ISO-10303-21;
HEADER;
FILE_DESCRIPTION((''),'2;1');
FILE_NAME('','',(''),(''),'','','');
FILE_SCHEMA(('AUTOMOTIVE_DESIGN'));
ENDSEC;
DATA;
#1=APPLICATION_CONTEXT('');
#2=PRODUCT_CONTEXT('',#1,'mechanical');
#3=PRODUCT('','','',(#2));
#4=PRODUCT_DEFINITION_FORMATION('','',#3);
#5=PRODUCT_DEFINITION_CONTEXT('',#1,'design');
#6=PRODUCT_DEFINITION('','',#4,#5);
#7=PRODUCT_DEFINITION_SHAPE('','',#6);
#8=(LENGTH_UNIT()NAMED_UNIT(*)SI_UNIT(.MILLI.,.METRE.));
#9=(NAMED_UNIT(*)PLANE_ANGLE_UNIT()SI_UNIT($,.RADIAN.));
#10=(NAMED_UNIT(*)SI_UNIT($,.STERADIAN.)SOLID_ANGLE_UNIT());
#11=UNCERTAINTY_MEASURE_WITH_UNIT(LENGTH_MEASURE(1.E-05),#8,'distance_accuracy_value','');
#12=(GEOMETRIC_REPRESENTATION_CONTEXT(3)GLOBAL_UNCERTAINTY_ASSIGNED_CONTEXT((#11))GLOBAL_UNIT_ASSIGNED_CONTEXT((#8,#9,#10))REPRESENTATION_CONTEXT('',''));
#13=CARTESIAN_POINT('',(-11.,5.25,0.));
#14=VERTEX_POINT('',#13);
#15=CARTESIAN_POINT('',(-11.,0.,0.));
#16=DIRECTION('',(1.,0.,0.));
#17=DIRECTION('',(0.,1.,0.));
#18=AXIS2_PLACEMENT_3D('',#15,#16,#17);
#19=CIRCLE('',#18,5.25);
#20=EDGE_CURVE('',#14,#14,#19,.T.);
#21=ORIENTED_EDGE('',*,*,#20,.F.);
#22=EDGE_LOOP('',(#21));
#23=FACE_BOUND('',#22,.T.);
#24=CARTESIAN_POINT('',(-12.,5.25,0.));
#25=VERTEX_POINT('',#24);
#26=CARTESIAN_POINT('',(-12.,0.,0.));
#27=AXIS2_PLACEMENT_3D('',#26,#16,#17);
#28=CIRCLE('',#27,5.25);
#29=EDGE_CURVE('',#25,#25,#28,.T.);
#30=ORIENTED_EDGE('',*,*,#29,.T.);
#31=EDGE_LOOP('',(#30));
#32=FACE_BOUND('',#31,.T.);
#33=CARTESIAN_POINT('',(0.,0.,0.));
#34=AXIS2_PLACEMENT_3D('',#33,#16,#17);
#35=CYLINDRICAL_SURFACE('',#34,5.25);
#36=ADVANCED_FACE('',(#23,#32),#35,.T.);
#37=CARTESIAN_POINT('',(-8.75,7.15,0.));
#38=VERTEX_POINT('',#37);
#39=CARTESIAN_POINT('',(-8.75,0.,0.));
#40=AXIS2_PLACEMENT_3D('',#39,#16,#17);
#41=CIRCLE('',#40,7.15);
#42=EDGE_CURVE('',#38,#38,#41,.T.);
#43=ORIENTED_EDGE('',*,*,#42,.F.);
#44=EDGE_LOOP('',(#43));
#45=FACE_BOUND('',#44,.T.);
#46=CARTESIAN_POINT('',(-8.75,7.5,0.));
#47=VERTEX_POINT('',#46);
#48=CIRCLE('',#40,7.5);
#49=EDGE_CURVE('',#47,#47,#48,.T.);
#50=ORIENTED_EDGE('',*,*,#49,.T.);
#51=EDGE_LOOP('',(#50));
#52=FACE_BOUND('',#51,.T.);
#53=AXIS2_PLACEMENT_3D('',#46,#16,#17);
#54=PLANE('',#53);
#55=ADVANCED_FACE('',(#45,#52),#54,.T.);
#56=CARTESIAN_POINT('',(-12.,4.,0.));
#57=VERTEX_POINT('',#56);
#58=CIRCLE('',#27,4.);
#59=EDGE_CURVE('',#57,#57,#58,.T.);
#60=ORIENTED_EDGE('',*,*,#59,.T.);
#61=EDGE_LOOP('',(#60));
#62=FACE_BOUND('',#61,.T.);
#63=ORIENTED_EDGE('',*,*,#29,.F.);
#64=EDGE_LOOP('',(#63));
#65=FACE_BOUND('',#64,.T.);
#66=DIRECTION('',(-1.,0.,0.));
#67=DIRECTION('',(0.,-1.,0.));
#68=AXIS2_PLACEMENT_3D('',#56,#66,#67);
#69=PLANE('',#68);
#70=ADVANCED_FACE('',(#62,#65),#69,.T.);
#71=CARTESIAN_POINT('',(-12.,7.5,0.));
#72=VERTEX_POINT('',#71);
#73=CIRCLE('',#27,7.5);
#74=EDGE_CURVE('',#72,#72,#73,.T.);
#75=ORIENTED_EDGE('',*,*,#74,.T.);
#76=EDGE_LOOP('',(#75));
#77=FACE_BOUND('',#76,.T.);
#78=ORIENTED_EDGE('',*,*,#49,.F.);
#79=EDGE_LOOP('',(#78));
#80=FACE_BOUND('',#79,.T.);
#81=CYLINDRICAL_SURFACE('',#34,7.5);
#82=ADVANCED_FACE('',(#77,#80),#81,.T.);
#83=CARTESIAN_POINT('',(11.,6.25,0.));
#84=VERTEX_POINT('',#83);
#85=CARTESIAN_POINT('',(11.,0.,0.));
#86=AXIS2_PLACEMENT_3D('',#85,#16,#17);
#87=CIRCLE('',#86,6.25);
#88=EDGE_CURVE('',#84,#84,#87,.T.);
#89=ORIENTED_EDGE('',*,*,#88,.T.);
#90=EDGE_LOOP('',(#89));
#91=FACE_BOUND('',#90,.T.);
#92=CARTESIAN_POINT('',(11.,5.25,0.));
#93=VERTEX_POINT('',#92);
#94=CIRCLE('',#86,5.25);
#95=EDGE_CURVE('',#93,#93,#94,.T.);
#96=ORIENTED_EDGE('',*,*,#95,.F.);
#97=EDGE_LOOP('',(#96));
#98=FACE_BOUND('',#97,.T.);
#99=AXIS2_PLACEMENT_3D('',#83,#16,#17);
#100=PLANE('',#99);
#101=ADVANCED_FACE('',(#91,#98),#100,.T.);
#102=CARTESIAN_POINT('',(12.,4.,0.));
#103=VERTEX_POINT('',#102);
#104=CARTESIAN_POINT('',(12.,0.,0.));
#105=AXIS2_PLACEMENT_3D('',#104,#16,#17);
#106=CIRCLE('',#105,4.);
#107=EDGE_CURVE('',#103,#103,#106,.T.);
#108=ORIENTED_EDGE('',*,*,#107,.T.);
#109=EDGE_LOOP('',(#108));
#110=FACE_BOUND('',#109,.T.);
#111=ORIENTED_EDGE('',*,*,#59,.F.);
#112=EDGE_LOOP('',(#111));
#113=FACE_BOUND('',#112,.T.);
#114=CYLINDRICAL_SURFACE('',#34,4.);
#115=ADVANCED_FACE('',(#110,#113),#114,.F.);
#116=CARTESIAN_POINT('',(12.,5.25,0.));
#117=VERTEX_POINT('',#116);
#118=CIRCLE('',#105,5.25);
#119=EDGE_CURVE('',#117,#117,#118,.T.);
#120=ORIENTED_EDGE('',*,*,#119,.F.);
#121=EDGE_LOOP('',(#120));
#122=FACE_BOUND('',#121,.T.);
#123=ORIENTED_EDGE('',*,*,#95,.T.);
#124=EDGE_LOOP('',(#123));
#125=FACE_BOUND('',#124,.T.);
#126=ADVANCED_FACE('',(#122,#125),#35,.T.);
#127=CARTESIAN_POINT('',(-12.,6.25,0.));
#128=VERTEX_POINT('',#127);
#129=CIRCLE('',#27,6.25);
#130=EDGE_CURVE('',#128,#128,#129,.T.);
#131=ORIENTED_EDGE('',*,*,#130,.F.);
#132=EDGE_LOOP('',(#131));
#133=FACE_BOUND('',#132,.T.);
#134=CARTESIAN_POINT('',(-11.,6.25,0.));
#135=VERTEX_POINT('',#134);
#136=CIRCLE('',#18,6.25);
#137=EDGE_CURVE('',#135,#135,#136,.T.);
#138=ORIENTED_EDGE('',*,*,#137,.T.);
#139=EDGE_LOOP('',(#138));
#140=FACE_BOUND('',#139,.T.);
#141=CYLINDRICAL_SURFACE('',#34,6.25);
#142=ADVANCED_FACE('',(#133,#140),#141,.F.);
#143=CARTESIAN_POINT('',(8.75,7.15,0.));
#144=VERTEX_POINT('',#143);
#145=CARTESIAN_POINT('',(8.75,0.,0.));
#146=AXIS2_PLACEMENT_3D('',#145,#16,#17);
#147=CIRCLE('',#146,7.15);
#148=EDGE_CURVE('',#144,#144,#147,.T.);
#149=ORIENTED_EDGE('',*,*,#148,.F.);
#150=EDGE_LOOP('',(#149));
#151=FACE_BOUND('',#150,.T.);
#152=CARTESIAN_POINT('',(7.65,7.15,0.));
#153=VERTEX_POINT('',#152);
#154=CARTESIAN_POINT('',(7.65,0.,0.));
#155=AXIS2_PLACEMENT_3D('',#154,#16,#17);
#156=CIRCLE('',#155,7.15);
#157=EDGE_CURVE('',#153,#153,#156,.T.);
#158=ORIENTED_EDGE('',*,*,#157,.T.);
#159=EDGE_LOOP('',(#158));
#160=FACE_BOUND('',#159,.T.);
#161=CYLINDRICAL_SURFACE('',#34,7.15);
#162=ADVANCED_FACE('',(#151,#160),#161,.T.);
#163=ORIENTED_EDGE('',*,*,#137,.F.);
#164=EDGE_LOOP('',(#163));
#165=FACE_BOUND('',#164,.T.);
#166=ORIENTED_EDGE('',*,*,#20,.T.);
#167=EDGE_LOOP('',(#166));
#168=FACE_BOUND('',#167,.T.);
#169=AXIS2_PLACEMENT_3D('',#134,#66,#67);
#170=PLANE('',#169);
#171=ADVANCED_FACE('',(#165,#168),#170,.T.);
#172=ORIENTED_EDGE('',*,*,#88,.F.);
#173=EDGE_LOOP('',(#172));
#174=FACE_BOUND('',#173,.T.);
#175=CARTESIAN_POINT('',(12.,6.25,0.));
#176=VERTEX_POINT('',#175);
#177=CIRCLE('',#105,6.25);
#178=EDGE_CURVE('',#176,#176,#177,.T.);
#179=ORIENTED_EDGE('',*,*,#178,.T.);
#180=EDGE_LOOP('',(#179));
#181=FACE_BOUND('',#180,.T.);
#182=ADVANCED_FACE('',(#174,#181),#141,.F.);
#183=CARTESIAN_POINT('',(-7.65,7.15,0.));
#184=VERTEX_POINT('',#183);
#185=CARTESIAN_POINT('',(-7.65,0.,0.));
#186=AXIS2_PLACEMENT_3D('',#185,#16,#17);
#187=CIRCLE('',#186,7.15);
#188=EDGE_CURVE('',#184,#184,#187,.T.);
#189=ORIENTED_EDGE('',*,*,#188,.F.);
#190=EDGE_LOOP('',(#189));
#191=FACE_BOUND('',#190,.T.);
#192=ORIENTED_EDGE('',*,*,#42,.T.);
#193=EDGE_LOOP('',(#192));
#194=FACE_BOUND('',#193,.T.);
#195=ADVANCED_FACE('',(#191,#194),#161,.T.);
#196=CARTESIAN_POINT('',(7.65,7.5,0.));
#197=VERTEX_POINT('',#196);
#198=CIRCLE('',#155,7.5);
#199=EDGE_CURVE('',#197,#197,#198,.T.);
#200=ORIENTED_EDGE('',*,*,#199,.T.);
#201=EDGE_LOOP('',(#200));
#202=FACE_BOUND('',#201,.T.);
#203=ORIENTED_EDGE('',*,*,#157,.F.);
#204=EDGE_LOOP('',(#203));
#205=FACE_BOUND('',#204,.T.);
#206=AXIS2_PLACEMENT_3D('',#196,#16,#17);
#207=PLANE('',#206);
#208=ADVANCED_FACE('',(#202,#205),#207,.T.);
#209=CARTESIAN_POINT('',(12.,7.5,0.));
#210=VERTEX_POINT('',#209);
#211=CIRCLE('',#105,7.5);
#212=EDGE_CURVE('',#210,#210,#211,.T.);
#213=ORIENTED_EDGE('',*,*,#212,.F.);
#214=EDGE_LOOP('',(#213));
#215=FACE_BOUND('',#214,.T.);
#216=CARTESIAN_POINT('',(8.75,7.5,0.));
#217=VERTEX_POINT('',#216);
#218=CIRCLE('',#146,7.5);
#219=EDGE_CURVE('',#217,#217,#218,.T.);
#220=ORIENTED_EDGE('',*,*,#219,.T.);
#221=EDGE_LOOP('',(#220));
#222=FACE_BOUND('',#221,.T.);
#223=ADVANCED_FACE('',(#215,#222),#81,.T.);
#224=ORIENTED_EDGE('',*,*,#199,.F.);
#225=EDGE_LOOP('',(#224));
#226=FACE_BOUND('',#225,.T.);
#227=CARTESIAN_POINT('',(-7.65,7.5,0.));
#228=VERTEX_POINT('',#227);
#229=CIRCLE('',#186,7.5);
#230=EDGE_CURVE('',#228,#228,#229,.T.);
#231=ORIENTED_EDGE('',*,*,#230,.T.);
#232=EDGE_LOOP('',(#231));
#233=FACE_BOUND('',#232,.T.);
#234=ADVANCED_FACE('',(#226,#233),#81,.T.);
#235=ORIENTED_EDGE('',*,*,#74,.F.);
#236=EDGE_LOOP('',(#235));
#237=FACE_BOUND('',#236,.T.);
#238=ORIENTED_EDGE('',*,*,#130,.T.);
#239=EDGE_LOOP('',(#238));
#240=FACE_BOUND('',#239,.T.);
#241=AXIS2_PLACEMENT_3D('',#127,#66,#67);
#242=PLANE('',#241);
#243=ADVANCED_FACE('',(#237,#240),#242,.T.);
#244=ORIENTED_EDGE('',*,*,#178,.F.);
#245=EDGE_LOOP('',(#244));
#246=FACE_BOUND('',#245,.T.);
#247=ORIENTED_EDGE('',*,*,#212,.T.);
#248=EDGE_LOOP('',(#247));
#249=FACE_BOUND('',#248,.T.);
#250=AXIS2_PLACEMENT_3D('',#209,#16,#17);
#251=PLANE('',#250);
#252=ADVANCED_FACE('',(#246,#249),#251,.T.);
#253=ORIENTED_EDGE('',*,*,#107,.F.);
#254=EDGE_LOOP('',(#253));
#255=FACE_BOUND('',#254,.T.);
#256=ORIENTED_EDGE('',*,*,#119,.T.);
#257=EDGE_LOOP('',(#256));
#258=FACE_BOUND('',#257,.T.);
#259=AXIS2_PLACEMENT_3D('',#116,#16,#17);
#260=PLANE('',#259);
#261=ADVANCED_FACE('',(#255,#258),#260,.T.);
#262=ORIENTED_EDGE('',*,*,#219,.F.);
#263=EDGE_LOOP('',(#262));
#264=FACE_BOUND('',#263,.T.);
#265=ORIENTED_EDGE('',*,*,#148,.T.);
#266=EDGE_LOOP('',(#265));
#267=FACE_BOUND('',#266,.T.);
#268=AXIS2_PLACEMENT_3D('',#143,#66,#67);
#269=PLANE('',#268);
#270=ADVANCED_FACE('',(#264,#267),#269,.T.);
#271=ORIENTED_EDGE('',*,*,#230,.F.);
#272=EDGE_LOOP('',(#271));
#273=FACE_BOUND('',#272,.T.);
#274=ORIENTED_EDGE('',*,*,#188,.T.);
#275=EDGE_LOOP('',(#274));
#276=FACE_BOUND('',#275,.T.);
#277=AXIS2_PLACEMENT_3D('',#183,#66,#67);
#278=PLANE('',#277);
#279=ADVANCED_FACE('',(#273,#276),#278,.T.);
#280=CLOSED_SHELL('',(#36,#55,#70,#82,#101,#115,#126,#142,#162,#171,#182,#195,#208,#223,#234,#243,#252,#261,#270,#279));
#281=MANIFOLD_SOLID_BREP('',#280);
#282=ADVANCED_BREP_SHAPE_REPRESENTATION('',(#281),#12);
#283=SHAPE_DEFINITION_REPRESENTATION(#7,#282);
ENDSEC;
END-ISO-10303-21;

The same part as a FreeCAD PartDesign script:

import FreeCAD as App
import Part
import Sketcher
Q = App.Units.Quantity

doc = App.newDocument("Part")
body = doc.addObject("PartDesign::Body", "Body")

# Sketch on XY plane
sketch1 = body.newObject("Sketcher::SketchObject", "Sketch")
sketch1.AttachmentSupport = (doc.getObject("XY_Plane"), [""])
sketch1.MapMode = "FlatFace"
sketch1.addGeometry([
    Part.LineSegment(App.Vector(-8.75, 7.5, 0), App.Vector(-12, 7.5, 0)),  # 0
    Part.LineSegment(App.Vector(-12, 7.5, 0), App.Vector(-12, 6.25, 0)),  # 1
    Part.LineSegment(App.Vector(-12, 6.25, 0), App.Vector(-11, 6.25, 0)),  # 2
    Part.LineSegment(App.Vector(-11, 6.25, 0), App.Vector(-11, 5.25, 0)),  # 3
    Part.LineSegment(App.Vector(-11, 5.25, 0), App.Vector(-12, 5.25, 0)),  # 4
    Part.LineSegment(App.Vector(-12, 5.25, 0), App.Vector(-12, 4, 0)),  # 5
    Part.LineSegment(App.Vector(-12, 4, 0), App.Vector(12, 4, 0)),  # 6
    Part.LineSegment(App.Vector(12, 4, 0), App.Vector(12, 5.25, 0)),  # 7
    Part.LineSegment(App.Vector(12, 5.25, 0), App.Vector(11, 5.25, 0)),  # 8
    Part.LineSegment(App.Vector(11, 5.25, 0), App.Vector(11, 6.25, 0)),  # 9
    Part.LineSegment(App.Vector(11, 6.25, 0), App.Vector(12, 6.25, 0)),  # 10
    Part.LineSegment(App.Vector(12, 6.25, 0), App.Vector(12, 7.5, 0)),  # 11
    Part.LineSegment(App.Vector(12, 7.5, 0), App.Vector(8.75, 7.5, 0)),  # 12
    Part.LineSegment(App.Vector(8.75, 7.5, 0), App.Vector(8.75, 7.15, 0)),  # 13
    Part.LineSegment(App.Vector(8.75, 7.15, 0), App.Vector(7.65, 7.15, 0)),  # 14
    Part.LineSegment(App.Vector(7.65, 7.15, 0), App.Vector(7.65, 7.5, 0)),  # 15
    Part.LineSegment(App.Vector(7.65, 7.5, 0), App.Vector(-7.65, 7.5, 0)),  # 16
    Part.LineSegment(App.Vector(-7.65, 7.5, 0), App.Vector(-7.65, 7.15, 0)),  # 17
    Part.LineSegment(App.Vector(-7.65, 7.15, 0), App.Vector(-8.75, 7.15, 0)),  # 18
    Part.LineSegment(App.Vector(-8.75, 7.15, 0), App.Vector(-8.75, 7.5, 0)),  # 19
], False)
sketch1.addConstraint([
    Sketcher.Constraint("Coincident", 0, 2, 1, 1),
    Sketcher.Constraint("Coincident", 1, 2, 2, 1),
    Sketcher.Constraint("Coincident", 2, 2, 3, 1),
    Sketcher.Constraint("Coincident", 3, 2, 4, 1),
    Sketcher.Constraint("Coincident", 4, 2, 5, 1),
    Sketcher.Constraint("Coincident", 5, 2, 6, 1),
    Sketcher.Constraint("Coincident", 6, 2, 7, 1),
    Sketcher.Constraint("Coincident", 7, 2, 8, 1),
    Sketcher.Constraint("Coincident", 8, 2, 9, 1),
    Sketcher.Constraint("Coincident", 9, 2, 10, 1),
    Sketcher.Constraint("Coincident", 10, 2, 11, 1),
    Sketcher.Constraint("Coincident", 11, 2, 12, 1),
    Sketcher.Constraint("Coincident", 12, 2, 13, 1),
    Sketcher.Constraint("Coincident", 13, 2, 14, 1),
    Sketcher.Constraint("Coincident", 14, 2, 15, 1),
    Sketcher.Constraint("Coincident", 15, 2, 16, 1),
    Sketcher.Constraint("Coincident", 16, 2, 17, 1),
    Sketcher.Constraint("Coincident", 17, 2, 18, 1),
    Sketcher.Constraint("Coincident", 18, 2, 19, 1),
    Sketcher.Constraint("Coincident", 19, 2, 0, 1),
    Sketcher.Constraint("Horizontal", 0),
    Sketcher.Constraint("Vertical", 1),
    Sketcher.Constraint("Horizontal", 2),
    Sketcher.Constraint("Vertical", 3),
    Sketcher.Constraint("Horizontal", 4),
    Sketcher.Constraint("Vertical", 5),
    Sketcher.Constraint("Horizontal", 6),
    Sketcher.Constraint("Vertical", 7),
    Sketcher.Constraint("Horizontal", 8),
    Sketcher.Constraint("Vertical", 9),
    Sketcher.Constraint("Horizontal", 10),
    Sketcher.Constraint("Vertical", 11),
    Sketcher.Constraint("Horizontal", 12),
    Sketcher.Constraint("Vertical", 13),
    Sketcher.Constraint("Horizontal", 14),
    Sketcher.Constraint("Vertical", 15),
    Sketcher.Constraint("Horizontal", 16),
    Sketcher.Constraint("Vertical", 17),
    Sketcher.Constraint("Horizontal", 18),
    Sketcher.Constraint("Vertical", 19),
    Sketcher.Constraint("Symmetric", 4, 2, 7, 2, -2),
    Sketcher.Constraint("Symmetric", 2, 2, 9, 2, -2),
    Sketcher.Constraint("Symmetric", 0, 2, 11, 2, -2),
    Sketcher.Constraint("Symmetric", 14, 2, 17, 2, -2),
    Sketcher.Constraint("Horizontal", 12, 2, 15, 2),
    Sketcher.Constraint("Vertical", 1, 2, 4, 2),
    Sketcher.Constraint("Equal", 0, 12),
    Sketcher.Constraint("Equal", 10, 3),
    Sketcher.Constraint("Equal", 1, 5),
    Sketcher.Constraint("DistanceX", 2, 1, 2, 2, Q("1 mm")),
    Sketcher.Constraint("DistanceX", 6, 1, 6, 2, Q("24 mm")),
    Sketcher.Constraint("DistanceX", 14, 2, 14, 1, Q("1.1 mm")),
    Sketcher.Constraint("DistanceX", 16, 2, 16, 1, Q("15.3 mm")),
    Sketcher.Constraint("DistanceY", -1, 1, 5, 2, Q("4 mm")),
    Sketcher.Constraint("DistanceY", 1, 2, 1, 1, Q("1.25 mm")),
    Sketcher.Constraint("DistanceY", 13, 2, 13, 1, Q("0.35 mm")),
])
revolution = body.newObject("PartDesign::Revolution", "Revolution")
revolution.Profile = sketch1
revolution.ReferenceAxis = (sketch1, ["H_Axis"])
revolution.Angle = 360

doc.recompute()
